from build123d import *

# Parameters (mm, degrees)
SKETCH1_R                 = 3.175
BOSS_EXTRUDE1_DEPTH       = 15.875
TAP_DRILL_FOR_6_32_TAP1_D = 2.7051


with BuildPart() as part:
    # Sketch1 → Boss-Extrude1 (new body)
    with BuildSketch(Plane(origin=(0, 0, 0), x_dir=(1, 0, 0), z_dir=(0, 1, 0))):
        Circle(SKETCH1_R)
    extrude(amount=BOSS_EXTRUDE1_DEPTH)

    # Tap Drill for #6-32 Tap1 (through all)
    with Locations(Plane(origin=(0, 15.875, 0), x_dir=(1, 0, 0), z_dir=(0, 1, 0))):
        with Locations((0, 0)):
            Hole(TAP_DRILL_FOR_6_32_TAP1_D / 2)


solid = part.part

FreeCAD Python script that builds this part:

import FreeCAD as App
import Part
import Sketcher
from FreeCAD import Vector
Q = App.Units.Quantity

doc = App.newDocument("Part")
params = doc.addObject("Spreadsheet::Sheet", "Params")
for row, (alias, value) in enumerate([
    ("sketch1_diameter", "0.25 in"),
    ("pad1_length", "0.625 in"),
    ("hole_diameter", "0.1065 in"),
], start=1):
    params.set(f"A{row}", alias)
    params.set(f"B{row}", "=" + value)
    params.setAlias(f"B{row}", alias)

body = doc.addObject("PartDesign::Body", "Body")

sketch1 = body.newObject("Sketcher::SketchObject", "Sketch")
sketch1.AttachmentSupport = (doc.getObject("XZ_Plane"), [""])
sketch1.MapMode = "FlatFace"
sketch1.addGeometry(Part.Circle(Vector(0, 0, 0), Vector(0, 0, 1), 3.2), False)
sketch1.addConstraint(Sketcher.Constraint("Coincident", 0, 3, -1, 1))
sketch1.addConstraint(Sketcher.Constraint("Diameter", 0, Q("0.25 in")))
sketch1.setExpression("Constraints[1]", "Params.sketch1_diameter")
pad1 = body.newObject("PartDesign::Pad", "Pad")
pad1.Profile = sketch1
pad1.setExpression("Length", "Params.pad1_length")
pad1.Reversed = True

sketch2 = body.newObject("Sketcher::SketchObject", "Sketch001")
sketch2.AttachmentSupport = (doc.getObject("XZ_Plane"), [""])
sketch2.MapMode = "FlatFace"
sketch2.AttachmentOffset = App.Placement(Vector(0, 0, -0.625 * 25.4), App.Rotation())
sketch2.addGeometry(Part.Circle(Vector(0, 0, 0), Vector(0, 0, 1), 1.4), False)
sketch2.addConstraint(Sketcher.Constraint("Coincident", 0, 3, -1, 1))
sketch2.addConstraint(Sketcher.Constraint("Diameter", 0, Q("0.1065 in")))
doc.recompute()
hole = body.newObject("PartDesign::Hole", "Hole")
hole.Profile = sketch2
hole.ThreadType = "None"
hole.setExpression("Diameter", "Params.hole_diameter")
hole.DepthType = "ThroughAll"
hole.Reversed = True

doc.recompute()
